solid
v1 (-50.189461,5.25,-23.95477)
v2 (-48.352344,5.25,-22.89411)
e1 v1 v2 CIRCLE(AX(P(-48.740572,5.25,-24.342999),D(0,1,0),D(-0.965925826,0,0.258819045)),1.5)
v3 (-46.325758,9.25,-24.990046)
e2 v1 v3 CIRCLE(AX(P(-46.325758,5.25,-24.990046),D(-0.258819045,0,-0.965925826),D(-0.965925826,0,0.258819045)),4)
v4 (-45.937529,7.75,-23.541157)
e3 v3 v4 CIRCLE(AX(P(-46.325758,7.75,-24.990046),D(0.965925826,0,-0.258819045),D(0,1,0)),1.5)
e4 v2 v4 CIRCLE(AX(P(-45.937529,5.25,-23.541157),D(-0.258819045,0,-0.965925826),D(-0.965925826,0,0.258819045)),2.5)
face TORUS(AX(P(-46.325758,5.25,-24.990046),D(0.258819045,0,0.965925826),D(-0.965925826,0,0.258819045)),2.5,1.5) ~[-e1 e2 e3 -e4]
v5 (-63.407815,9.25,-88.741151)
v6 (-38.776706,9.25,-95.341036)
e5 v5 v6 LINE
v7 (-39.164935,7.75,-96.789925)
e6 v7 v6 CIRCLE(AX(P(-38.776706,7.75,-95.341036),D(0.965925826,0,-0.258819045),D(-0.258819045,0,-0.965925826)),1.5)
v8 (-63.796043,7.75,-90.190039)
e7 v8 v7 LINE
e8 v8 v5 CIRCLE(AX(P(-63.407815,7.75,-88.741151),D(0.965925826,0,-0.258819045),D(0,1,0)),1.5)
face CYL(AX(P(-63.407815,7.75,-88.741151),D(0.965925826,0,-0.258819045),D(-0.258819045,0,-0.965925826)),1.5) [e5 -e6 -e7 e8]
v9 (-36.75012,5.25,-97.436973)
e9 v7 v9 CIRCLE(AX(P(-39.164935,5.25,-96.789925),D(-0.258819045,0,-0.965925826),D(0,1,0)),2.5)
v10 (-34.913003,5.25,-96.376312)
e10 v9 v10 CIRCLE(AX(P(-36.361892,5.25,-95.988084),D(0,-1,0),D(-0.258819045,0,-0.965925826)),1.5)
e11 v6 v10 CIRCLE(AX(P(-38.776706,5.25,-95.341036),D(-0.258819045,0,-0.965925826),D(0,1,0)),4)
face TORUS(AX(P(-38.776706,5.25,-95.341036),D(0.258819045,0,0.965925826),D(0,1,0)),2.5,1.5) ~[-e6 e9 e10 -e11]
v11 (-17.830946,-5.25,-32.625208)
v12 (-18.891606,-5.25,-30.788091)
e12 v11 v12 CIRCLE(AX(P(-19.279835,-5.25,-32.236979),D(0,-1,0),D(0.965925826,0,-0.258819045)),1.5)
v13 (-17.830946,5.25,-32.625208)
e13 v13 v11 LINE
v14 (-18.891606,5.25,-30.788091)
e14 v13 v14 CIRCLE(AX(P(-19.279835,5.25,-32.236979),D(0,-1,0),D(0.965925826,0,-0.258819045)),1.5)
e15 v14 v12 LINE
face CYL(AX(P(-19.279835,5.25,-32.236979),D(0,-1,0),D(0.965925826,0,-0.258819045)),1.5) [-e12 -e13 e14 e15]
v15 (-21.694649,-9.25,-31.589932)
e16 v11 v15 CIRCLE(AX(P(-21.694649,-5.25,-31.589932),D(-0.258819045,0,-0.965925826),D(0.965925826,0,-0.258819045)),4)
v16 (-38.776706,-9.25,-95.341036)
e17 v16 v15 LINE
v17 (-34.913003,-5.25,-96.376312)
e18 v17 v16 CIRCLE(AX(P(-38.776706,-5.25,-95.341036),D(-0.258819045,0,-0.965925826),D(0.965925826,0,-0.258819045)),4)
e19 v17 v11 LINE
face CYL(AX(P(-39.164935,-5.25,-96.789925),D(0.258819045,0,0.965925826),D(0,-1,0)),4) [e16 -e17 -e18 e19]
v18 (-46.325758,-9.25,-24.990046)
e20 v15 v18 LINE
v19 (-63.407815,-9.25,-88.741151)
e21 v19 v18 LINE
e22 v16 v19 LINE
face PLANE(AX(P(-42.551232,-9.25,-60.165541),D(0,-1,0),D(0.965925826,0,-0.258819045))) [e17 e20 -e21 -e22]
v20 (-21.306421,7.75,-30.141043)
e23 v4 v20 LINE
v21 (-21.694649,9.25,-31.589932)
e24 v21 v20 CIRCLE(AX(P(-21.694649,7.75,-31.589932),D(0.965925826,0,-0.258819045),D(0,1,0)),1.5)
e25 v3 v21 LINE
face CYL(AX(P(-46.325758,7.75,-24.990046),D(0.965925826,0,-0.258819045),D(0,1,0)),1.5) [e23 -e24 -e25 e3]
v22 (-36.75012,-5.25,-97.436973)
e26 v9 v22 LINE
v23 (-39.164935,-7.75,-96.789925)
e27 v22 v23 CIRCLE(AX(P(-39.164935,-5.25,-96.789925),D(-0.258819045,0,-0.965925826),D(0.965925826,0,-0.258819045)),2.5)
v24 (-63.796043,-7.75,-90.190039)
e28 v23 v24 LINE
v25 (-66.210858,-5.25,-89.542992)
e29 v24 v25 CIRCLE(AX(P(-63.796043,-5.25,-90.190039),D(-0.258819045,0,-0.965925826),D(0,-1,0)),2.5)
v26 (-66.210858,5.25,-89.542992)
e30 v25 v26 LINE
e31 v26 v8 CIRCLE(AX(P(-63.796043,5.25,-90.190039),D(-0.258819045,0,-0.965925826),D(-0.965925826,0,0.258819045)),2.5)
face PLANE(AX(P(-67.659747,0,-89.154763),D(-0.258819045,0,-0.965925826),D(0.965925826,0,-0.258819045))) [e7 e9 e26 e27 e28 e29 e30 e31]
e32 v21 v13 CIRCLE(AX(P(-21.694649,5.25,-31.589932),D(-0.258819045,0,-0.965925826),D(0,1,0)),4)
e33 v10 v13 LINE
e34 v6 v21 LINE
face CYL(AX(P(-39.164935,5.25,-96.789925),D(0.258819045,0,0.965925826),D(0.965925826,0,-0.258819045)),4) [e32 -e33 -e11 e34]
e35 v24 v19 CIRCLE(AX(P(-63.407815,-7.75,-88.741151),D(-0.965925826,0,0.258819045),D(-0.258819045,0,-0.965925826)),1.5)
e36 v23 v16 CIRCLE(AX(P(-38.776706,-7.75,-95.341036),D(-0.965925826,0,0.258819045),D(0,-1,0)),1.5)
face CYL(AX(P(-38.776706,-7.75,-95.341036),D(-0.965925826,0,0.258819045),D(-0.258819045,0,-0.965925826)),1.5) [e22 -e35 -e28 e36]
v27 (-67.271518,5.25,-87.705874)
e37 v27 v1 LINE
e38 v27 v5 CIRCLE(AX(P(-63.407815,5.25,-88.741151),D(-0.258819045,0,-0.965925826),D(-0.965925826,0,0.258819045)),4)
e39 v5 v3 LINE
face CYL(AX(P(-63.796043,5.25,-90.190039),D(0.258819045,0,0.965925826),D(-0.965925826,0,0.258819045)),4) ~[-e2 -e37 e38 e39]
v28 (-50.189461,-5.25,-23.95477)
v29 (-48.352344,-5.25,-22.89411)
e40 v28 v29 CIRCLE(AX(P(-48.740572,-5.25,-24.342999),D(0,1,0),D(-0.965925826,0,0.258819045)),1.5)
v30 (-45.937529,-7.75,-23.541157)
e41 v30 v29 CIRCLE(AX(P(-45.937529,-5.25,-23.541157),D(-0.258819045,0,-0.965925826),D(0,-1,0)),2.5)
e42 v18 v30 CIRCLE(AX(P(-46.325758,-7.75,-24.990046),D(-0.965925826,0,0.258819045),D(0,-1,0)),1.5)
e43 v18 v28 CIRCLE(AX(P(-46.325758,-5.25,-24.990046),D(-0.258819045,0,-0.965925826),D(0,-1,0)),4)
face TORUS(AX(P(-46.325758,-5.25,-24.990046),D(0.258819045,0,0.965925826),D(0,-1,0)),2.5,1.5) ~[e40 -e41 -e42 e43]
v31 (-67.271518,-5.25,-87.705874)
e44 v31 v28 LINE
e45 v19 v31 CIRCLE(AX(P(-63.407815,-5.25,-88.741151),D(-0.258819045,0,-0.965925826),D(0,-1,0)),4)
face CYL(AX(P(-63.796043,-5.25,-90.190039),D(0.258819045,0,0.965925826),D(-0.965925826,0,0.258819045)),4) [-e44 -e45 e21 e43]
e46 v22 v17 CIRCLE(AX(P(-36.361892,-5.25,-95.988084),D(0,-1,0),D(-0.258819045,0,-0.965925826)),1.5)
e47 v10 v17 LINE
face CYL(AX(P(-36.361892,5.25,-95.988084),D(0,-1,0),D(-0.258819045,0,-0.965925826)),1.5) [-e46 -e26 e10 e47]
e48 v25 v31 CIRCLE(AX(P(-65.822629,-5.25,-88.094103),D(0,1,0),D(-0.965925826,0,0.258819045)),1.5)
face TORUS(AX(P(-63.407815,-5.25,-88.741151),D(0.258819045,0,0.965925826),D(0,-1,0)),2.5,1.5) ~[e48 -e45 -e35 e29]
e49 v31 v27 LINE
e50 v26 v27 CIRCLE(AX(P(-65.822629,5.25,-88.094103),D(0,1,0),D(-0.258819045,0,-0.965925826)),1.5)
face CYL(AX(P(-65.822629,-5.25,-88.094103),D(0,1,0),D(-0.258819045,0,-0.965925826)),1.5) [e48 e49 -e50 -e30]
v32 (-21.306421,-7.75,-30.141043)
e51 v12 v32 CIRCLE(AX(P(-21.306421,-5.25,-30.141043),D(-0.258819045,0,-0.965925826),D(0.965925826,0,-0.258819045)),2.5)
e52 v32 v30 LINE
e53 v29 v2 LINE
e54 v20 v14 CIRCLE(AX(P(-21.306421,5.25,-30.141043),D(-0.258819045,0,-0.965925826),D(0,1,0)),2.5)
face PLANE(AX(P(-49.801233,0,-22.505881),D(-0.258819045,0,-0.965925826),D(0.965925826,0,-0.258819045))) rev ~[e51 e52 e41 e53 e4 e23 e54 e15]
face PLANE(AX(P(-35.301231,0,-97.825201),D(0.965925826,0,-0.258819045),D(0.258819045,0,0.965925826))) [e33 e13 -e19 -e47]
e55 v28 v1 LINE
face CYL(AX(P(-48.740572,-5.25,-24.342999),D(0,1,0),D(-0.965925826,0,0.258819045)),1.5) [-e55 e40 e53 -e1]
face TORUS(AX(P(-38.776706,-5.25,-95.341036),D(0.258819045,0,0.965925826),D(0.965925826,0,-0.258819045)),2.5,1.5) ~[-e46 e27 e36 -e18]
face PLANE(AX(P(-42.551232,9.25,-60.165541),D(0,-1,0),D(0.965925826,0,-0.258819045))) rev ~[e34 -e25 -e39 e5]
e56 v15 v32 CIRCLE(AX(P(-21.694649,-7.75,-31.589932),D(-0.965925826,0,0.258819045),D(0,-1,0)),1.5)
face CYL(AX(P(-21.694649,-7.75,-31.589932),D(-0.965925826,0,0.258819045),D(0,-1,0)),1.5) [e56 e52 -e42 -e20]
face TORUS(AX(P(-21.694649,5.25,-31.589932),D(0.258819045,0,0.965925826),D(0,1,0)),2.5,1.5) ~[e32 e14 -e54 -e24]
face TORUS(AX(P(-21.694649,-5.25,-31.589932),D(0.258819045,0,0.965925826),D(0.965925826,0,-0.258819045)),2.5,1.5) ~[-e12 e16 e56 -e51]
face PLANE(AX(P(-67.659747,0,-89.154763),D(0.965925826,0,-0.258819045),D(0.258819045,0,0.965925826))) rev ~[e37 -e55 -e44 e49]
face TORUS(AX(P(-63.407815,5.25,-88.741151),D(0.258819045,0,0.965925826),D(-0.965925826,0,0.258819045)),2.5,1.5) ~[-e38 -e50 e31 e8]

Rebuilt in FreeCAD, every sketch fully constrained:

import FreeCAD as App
import Part
import Sketcher

V = App.Vector


def edges_at(feature, points):
    """Names of the edges that pass closest to the given points."""
    edges = feature.Shape.Edges
    near = lambda p: min(range(len(edges)), key=lambda i: edges[i].distToShape(Part.Vertex(*p))[0])
    return sorted({f"Edge{near(p) + 1}" for p in points})

doc = App.newDocument("Part")
body = doc.addObject("PartDesign::Body", "Body")

# Sketch on XZ plane
sketch1 = doc.addObject("Sketcher::SketchObject", "Sketch")
body.addObject(sketch1)
sketch1.AttachmentSupport = (doc.XZ_Plane, [""])
sketch1.MapMode = "FlatFace"
sketch1.addGeometry([
    Part.LineSegment(V(-17, 34, 0), V(-17, -34, 0)),
    Part.LineSegment(V(-17, -34, 0), V(17, -34, 0)),
    Part.LineSegment(V(17, -34, 0), V(17, 34, 0)),
    Part.LineSegment(V(17, 34, 0), V(-17, 34, 0)),
], False)
sketch1.addConstraint([
    Sketcher.Constraint("Coincident", 0, 2, 1, 1),
    Sketcher.Constraint("Coincident", 1, 2, 2, 1),
    Sketcher.Constraint("Coincident", 2, 2, 3, 1),
    Sketcher.Constraint("Coincident", 3, 2, 0, 1),
    Sketcher.Constraint("Vertical", 0),
    Sketcher.Constraint("Horizontal", 1),
    Sketcher.Constraint("Vertical", 2),
    Sketcher.Constraint("Horizontal", 3),
    Sketcher.Constraint("Symmetric", 0, 2, 2, 2, -1, 1),
    Sketcher.Constraint("DistanceY", 0, 2, 0, 1, 69.0),
    Sketcher.Constraint("DistanceX", 1, 1, 1, 2, 33.5),
])
pad1 = doc.addObject("PartDesign::Pad", "Pad")
body.addObject(pad1)
pad1.Profile = sketch1
pad1.Length = 18.5
pad1.Midplane = True
doc.recompute()

fillet = doc.addObject("PartDesign::Fillet", "Fillet")
body.addObject(fillet)
fillet.Base = (pad1, edges_at(pad1, [
    (-16.75, -9.25, 0),
    (-16.75, 9.25, 0),
    (16.75, -9.25, 0),
    (16.75, 9.25, 0),
]))
fillet.Radius = 4
doc.recompute()

fillet2 = doc.addObject("PartDesign::Fillet", "Fillet001")
body.addObject(fillet2)
fillet2.Base = (fillet, edges_at(fillet, [
    (-16.75, 0, 34.5),
    (-15.578, 8.078, 34.5),
    (-15.578, -8.078, 34.5),
    (0, 9.25, 34.5),
    (0, -9.25, 34.5),
    (15.578, 8.078, 34.5),
    (15.578, -8.078, 34.5),
    (16.75, 0, 34.5),
    (16.75, 0, -34.5),
    (15.578, 8.078, -34.5),
    (15.578, -8.078, -34.5),
    (0, 9.25, -34.5),
    (0, -9.25, -34.5),
    (-15.578, 8.078, -34.5),
    (-15.578, -8.078, -34.5),
    (-16.75, 0, -34.5),
]))
fillet2.Radius = 1.5
body2 = doc.addObject("PartDesign::Body", "Body001")
doc.recompute()

body.Placement = App.Placement(V(-42.551232, 0, -60.165541), App.Rotation(V(0, 1, 0), 15))
boolean = doc.addObject("PartDesign::Boolean", "Boolean")
body2.addObject(boolean)
boolean.Type = "Fuse"
boolean.addObjects([body])

doc.recompute()
